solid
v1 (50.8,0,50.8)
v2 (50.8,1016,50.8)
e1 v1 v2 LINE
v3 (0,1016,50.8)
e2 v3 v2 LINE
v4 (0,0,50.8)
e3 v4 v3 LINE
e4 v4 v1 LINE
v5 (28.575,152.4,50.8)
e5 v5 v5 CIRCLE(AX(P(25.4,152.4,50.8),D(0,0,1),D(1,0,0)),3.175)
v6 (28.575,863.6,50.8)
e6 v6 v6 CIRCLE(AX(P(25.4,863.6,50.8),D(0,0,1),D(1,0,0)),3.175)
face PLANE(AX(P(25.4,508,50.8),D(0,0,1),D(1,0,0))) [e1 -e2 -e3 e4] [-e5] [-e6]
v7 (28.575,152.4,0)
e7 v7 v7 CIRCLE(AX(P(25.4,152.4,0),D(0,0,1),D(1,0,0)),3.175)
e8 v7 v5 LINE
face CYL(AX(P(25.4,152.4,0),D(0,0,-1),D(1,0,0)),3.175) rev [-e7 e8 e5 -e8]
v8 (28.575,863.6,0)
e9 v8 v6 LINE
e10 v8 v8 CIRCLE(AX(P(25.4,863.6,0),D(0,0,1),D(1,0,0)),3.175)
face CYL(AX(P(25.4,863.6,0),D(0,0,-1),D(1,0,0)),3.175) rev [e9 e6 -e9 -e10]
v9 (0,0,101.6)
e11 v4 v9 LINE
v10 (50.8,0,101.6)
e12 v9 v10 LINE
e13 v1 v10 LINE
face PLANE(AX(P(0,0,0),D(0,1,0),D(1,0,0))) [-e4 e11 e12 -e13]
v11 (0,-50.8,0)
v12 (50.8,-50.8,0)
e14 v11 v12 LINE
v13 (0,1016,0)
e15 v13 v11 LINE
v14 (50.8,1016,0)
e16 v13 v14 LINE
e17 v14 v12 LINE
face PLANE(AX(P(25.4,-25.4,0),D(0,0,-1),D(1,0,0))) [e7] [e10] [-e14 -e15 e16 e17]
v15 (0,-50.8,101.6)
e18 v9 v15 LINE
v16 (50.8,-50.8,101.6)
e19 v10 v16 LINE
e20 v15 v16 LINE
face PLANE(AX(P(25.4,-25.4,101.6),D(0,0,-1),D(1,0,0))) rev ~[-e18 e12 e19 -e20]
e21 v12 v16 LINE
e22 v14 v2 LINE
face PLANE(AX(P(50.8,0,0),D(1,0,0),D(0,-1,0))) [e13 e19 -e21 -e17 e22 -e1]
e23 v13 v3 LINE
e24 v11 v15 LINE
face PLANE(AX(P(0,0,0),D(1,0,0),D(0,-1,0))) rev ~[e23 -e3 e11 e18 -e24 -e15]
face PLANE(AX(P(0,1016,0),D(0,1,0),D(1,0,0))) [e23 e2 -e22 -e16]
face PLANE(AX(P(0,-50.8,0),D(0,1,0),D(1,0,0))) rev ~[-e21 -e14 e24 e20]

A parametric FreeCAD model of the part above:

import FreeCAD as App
import Part
import Sketcher
from FreeCAD import Vector
Q = App.Units.Quantity

doc = App.newDocument("Part")
body = doc.addObject("PartDesign::Body", "Body")

sketch1 = body.newObject("Sketcher::SketchObject", "Sketch")
sketch1.AttachmentSupport = (doc.getObject("XY_Plane"), [""])
sketch1.MapMode = "FlatFace"
sketch1.addGeometry([
    Part.LineSegment(Vector(0, 1016, 0), Vector(0, 0, 0)),
    Part.LineSegment(Vector(0, 0, 0), Vector(50.8, 0, 0)),
    Part.LineSegment(Vector(50.8, 0, 0), Vector(50.8, 1016, 0)),
    Part.LineSegment(Vector(50.8, 1016, 0), Vector(0, 1016, 0)),
    Part.Circle(Vector(25.4, 152.4, 0), Vector(0, 0, 1), 3.2),
    Part.Circle(Vector(25.4, 863.6, 0), Vector(0, 0, 1), 3.2),
], False)
sketch1.addConstraint([
    Sketcher.Constraint("Coincident", 0, 2, 1, 1),
    Sketcher.Constraint("Coincident", 1, 2, 2, 1),
    Sketcher.Constraint("Coincident", 2, 2, 3, 1),
    Sketcher.Constraint("Coincident", 3, 2, 0, 1),
    Sketcher.Constraint("Vertical", 0),
    Sketcher.Constraint("Horizontal", 1),
    Sketcher.Constraint("Vertical", 2),
    Sketcher.Constraint("Horizontal", 3),
    Sketcher.Constraint("Coincident", 0, 2, -1, 1),
    Sketcher.Constraint("Equal", 4, 5),
    Sketcher.Constraint("Vertical", 4, 3, 5, 3),
    Sketcher.Constraint("Diameter", 4, Q("0.25 in")),
    Sketcher.Constraint("DistanceX", 1, 1, 1, 2, Q("2 in")),
    Sketcher.Constraint("DistanceY", 0, 2, 0, 1, Q("40 in")),
    Sketcher.Constraint("DistanceX", -1, 1, 4, 3, Q("1 in")),
    Sketcher.Constraint("DistanceY", -1, 1, 4, 3, Q("6 in")),
    Sketcher.Constraint("DistanceY", -1, 1, 5, 3, Q("34 in")),
])
pad1 = body.newObject("PartDesign::Pad", "Pad")
pad1.Profile = sketch1
pad1.Length = Q("2 in")

sketch2 = body.newObject("Sketcher::SketchObject", "Sketch001")
sketch2.AttachmentSupport = (doc.getObject("XY_Plane"), [""])
sketch2.MapMode = "FlatFace"
sketch2.addGeometry([
    Part.LineSegment(Vector(0, -51, 0), Vector(0, 0, 0)),
    Part.LineSegment(Vector(0, 0, 0), Vector(51, 0, 0)),
    Part.LineSegment(Vector(51, 0, 0), Vector(51, -51, 0)),
    Part.LineSegment(Vector(51, -51, 0), Vector(0, -51, 0)),
], False)
sketch2.addConstraint([
    Sketcher.Constraint("Coincident", 0, 2, 1, 1),
    Sketcher.Constraint("Coincident", 1, 2, 2, 1),
    Sketcher.Constraint("Coincident", 2, 2, 3, 1),
    Sketcher.Constraint("Coincident", 3, 2, 0, 1),
    Sketcher.Constraint("Vertical", 0),
    Sketcher.Constraint("Horizontal", 1),
    Sketcher.Constraint("Vertical", 2),
    Sketcher.Constraint("Horizontal", 3),
    Sketcher.Constraint("Coincident", 0, 2, -1, 1),
    Sketcher.Constraint("Equal", 3, 0),
    Sketcher.Constraint("DistanceX", 1, 1, 1, 2, Q("2 in")),
])
pad2 = body.newObject("PartDesign::Pad", "Pad001")
pad2.Profile = sketch2
pad2.Length = Q("4 in")

doc.recompute()
